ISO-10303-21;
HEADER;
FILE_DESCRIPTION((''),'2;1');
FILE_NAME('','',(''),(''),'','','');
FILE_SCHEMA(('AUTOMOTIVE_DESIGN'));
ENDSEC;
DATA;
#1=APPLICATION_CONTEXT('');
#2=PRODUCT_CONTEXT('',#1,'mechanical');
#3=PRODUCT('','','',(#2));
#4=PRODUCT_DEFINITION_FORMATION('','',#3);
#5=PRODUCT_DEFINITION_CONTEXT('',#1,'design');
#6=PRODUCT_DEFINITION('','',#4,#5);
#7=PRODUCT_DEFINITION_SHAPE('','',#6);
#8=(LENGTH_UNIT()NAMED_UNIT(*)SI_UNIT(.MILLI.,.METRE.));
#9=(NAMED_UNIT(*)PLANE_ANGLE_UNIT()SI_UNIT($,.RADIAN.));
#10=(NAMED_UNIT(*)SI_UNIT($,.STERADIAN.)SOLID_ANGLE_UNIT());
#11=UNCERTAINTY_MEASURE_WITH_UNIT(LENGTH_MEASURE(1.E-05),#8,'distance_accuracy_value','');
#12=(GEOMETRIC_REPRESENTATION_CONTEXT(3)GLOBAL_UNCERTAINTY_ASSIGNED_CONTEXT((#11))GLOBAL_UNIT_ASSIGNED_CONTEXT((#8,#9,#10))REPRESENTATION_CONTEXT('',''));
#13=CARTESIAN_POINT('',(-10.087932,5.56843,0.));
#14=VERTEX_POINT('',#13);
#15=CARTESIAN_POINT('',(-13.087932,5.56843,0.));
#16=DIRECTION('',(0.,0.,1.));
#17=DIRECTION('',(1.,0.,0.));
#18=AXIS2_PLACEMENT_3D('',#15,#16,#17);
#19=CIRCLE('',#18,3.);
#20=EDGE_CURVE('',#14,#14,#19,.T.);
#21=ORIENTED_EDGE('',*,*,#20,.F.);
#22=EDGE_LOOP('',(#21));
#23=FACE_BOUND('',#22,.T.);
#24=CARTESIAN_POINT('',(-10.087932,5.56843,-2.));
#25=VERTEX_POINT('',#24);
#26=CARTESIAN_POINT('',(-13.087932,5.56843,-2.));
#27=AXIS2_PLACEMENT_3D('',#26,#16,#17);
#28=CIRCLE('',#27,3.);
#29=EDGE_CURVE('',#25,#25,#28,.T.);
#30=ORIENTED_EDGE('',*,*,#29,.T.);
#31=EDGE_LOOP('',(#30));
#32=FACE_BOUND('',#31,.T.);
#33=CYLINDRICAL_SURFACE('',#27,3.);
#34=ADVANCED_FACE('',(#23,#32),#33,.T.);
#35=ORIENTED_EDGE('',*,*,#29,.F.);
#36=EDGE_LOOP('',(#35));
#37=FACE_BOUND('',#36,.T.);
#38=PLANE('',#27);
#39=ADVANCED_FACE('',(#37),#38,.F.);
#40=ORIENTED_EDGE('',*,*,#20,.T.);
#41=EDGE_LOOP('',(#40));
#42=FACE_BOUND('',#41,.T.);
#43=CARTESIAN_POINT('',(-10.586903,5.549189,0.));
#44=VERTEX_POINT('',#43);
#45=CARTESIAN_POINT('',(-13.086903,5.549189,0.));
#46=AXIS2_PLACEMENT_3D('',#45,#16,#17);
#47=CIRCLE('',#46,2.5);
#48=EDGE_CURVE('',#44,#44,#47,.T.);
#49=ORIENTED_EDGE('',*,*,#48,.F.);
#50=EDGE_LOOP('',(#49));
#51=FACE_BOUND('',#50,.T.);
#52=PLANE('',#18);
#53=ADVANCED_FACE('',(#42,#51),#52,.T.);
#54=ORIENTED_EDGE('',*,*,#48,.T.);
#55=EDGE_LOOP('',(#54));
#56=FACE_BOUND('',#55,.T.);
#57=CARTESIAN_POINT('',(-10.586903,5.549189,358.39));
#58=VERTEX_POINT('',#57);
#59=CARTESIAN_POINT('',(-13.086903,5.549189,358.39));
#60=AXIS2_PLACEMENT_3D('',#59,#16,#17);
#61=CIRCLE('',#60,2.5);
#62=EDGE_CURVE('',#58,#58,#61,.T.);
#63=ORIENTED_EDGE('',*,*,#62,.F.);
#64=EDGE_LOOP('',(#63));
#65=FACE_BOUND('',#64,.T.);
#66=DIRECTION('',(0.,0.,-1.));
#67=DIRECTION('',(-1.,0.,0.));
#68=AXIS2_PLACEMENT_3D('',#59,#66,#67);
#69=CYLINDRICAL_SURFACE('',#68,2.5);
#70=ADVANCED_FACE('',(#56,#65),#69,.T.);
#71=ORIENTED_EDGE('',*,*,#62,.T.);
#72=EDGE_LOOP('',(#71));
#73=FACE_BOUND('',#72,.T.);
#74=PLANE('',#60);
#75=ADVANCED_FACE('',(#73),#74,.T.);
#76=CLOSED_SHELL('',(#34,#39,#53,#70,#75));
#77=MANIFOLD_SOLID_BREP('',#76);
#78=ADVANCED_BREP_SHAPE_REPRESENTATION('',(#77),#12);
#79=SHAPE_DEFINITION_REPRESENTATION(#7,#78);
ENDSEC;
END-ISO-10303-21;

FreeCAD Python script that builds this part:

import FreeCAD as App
import Part
import Sketcher
from FreeCAD import Vector

doc = App.newDocument("Part")
body = doc.addObject("PartDesign::Body", "Body")

# Sketch on XY plane
sketch1 = body.newObject("Sketcher::SketchObject", "Sketch")
sketch1.AttachmentSupport = (doc.getObject("XY_Plane"), [""])
sketch1.MapMode = "FlatFace"
sketch1.addGeometry(Part.Circle(Vector(-13.1, 5.5, 0), Vector(0, 0, 1), 2.5), False)
sketch1.addConstraint([
    Sketcher.Constraint("Diameter", 0, 5.0),
    Sketcher.Constraint("DistanceY", -1, 1, 0, 3, 5.549189),
    Sketcher.Constraint("DistanceX", 0, 3, -1, 1, 13.086903),
])
pad1 = body.newObject("PartDesign::Pad", "Pad")
pad1.Profile = sketch1
pad1.Length = 358.39

# Sketch on XY plane
sketch2 = body.newObject("Sketcher::SketchObject", "Sketch001")
sketch2.AttachmentSupport = (doc.getObject("XY_Plane"), [""])
sketch2.MapMode = "FlatFace"
sketch2.addGeometry(Part.Circle(Vector(-13.1, 5.6, 0), Vector(0, 0, 1), 3), False)
sketch2.addConstraint([
    Sketcher.Constraint("Diameter", 0, 6.0),
    Sketcher.Constraint("DistanceY", -1, 1, 0, 3, 5.56843),
    Sketcher.Constraint("DistanceX", 0, 3, -1, 1, 13.087932),
])
pad2 = body.newObject("PartDesign::Pad", "Pad001")
pad2.Profile = sketch2
pad2.Length = 2
pad2.Reversed = True

doc.recompute()
